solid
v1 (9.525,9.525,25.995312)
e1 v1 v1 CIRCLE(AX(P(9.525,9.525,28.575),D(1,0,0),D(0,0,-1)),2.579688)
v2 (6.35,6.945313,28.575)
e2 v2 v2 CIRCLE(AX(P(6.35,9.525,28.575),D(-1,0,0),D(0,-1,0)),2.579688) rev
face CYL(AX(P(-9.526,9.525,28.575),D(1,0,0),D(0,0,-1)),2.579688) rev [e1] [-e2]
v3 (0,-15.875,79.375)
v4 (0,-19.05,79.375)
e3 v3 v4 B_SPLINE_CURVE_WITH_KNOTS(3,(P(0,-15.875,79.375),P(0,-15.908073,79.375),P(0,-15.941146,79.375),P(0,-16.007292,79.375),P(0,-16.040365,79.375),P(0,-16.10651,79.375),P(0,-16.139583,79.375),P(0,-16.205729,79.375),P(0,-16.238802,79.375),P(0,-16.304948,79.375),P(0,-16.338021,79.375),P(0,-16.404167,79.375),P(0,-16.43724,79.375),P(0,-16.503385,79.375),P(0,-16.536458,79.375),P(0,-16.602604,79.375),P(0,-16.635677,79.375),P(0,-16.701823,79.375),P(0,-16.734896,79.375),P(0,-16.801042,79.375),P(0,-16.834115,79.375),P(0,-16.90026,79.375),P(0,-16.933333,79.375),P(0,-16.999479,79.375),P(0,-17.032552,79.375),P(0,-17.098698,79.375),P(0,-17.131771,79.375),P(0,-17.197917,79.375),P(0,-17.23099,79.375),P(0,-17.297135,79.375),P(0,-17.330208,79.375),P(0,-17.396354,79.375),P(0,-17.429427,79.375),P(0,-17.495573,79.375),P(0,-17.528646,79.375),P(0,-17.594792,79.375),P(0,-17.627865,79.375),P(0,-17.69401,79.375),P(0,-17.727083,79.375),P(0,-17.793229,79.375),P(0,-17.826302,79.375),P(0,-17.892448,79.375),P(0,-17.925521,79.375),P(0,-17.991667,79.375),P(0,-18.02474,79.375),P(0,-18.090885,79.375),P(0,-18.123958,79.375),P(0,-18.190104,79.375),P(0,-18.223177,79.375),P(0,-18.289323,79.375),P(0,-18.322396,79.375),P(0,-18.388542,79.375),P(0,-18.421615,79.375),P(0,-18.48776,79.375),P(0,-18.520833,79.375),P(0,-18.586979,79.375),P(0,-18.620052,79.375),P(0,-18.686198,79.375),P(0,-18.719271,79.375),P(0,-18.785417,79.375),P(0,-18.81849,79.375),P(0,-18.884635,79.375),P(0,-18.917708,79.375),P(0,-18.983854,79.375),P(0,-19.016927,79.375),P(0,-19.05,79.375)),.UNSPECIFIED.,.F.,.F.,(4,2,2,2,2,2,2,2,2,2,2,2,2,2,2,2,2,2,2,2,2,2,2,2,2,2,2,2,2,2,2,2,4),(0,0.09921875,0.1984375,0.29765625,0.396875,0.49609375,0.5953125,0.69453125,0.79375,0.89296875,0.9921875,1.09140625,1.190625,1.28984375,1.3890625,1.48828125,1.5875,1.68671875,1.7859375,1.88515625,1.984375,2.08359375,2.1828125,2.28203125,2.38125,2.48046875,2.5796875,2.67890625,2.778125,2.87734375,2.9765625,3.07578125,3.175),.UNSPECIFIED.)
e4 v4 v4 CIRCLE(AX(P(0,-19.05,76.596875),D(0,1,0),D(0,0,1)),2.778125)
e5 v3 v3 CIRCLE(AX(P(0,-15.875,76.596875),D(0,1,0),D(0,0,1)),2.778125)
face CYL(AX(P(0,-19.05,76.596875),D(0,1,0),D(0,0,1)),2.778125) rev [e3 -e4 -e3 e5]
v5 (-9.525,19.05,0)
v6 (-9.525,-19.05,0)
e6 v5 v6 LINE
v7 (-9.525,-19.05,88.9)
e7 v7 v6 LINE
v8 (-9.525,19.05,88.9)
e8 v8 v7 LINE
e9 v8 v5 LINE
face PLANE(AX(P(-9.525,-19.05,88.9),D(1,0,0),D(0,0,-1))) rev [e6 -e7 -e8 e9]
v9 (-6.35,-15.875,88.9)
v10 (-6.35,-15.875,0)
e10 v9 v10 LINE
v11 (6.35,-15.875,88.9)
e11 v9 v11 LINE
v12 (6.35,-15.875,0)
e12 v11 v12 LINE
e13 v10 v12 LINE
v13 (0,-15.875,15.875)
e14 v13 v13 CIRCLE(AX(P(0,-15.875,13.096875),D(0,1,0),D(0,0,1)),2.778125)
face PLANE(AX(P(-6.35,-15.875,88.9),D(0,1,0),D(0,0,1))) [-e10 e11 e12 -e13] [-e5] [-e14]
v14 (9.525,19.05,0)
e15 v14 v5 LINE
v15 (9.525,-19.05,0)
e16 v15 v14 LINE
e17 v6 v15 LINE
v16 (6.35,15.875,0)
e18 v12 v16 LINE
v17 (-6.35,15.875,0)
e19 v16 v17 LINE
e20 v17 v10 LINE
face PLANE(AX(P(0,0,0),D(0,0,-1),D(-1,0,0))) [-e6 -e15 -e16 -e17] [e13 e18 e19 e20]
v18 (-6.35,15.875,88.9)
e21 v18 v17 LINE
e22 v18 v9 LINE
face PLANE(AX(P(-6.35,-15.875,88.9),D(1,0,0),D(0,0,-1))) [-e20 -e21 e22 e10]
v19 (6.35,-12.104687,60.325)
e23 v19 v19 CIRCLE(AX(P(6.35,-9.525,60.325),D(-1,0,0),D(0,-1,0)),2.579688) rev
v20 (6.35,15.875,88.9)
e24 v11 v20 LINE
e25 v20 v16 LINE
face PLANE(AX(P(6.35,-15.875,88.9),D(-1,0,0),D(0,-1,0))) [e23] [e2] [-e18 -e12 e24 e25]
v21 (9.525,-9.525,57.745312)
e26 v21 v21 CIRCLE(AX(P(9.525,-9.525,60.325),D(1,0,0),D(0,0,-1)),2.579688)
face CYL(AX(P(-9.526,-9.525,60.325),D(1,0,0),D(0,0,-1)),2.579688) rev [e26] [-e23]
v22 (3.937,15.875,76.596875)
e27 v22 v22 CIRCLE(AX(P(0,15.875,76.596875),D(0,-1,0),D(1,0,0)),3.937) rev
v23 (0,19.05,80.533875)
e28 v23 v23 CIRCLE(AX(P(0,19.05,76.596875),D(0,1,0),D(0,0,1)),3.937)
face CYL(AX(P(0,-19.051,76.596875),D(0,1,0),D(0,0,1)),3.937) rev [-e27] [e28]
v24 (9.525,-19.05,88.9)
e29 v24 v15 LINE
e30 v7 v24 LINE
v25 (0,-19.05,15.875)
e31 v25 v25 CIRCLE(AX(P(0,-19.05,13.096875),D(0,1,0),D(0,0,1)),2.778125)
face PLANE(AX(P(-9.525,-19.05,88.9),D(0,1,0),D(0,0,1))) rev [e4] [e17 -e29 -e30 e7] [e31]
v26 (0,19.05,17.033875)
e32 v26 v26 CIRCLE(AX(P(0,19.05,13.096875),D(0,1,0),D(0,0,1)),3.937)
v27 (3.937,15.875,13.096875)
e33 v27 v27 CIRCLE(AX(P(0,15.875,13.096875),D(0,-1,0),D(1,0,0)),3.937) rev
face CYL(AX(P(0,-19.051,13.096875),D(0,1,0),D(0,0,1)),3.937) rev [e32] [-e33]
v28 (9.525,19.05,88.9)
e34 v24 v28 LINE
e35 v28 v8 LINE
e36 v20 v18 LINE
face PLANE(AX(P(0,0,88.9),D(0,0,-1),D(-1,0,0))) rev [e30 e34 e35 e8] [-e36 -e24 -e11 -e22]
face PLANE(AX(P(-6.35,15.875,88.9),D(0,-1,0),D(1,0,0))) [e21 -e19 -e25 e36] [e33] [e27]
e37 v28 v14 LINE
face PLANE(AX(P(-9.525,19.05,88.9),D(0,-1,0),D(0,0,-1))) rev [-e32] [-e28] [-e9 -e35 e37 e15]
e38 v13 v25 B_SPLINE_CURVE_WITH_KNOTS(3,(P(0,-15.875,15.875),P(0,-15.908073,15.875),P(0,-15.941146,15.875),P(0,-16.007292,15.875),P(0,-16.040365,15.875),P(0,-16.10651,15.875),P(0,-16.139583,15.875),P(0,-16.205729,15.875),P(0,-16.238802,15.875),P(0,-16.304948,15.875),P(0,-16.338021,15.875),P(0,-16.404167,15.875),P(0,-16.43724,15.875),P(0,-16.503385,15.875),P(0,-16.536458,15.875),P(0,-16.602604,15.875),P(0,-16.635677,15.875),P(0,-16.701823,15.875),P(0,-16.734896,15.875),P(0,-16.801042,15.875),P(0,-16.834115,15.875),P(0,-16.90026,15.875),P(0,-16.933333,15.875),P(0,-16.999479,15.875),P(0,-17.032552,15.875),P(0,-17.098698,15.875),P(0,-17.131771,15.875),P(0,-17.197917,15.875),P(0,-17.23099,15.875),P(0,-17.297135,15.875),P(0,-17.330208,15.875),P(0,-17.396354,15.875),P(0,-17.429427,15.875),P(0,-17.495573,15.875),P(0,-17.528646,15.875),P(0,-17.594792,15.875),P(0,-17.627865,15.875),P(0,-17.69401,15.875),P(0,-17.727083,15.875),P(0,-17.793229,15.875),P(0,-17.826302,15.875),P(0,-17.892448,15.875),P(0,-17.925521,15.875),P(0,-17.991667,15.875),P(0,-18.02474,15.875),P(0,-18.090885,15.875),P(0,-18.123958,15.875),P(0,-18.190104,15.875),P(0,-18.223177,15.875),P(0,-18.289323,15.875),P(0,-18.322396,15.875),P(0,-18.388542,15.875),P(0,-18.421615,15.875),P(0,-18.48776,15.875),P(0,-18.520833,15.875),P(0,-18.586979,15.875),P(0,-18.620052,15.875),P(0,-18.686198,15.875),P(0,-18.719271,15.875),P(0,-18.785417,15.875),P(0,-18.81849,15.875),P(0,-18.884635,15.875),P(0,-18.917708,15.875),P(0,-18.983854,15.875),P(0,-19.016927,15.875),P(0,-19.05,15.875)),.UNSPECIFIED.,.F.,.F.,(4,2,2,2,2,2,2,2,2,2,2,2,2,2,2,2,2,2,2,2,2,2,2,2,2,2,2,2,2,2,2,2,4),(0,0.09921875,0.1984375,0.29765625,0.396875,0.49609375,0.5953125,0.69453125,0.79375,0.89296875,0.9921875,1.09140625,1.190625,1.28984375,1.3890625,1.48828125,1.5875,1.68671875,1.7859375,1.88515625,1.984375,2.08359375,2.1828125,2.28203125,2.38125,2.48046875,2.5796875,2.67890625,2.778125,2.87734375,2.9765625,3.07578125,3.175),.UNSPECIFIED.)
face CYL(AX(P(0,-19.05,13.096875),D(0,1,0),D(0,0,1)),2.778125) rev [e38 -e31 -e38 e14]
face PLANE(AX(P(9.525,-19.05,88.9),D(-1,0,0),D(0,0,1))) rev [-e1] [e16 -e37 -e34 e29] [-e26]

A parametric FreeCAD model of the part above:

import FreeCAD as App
import Part
import Sketcher
from FreeCAD import Vector
Q = App.Units.Quantity


def add_polygon(sketch, points):
    """Adds a closed chain of lines whose ends are joined by coincident constraints."""
    first, n = sketch.GeometryCount, len(points)
    for a, b in zip(points, points[1:] + points[:1]):
        sketch.addGeometry(Part.LineSegment(App.Vector(*a, 0), App.Vector(*b, 0)), False)
    for i in range(n):
        sketch.addConstraint(Sketcher.Constraint("Coincident", first + i, 2, first + (i + 1) % n, 1))

doc = App.newDocument("Part")
body = doc.addObject("PartDesign::Body", "Body")

# Sketch on XY plane
sketch1 = doc.addObject("Sketcher::SketchObject", "Sketch")
body.addObject(sketch1)
sketch1.AttachmentSupport = (doc.XY_Plane, [""])
sketch1.MapMode = "FlatFace"
add_polygon(sketch1, [(-9.525, 19.05), (-9.525, -19.05), (9.525, -19.05), (9.525, 19.05)])  # lines 0-3
add_polygon(sketch1, [(6.35, -15.875), (-6.35, -15.875), (-6.35, 15.875), (6.35, 15.875)])  # lines 4-7
sketch1.addConstraint([
    Sketcher.Constraint("Vertical", 0),
    Sketcher.Constraint("Horizontal", 1),
    Sketcher.Constraint("Vertical", 2),
    Sketcher.Constraint("Horizontal", 3),
    Sketcher.Constraint("Horizontal", 4),
    Sketcher.Constraint("Vertical", 5),
    Sketcher.Constraint("Horizontal", 6),
    Sketcher.Constraint("Vertical", 7),
    Sketcher.Constraint("Symmetric", 0, 2, 2, 2, -1, 1),
    Sketcher.Constraint("Symmetric", 4, 2, 6, 2, -1, 1),
    Sketcher.Constraint("DistanceX", 4, 2, 4, 1, Q("0.5 in")),
    Sketcher.Constraint("DistanceY", 0, 2, 0, 1, Q("1.5 in")),
    Sketcher.Constraint("DistanceX", 1, 1, 1, 2, Q("0.75 in")),
    Sketcher.Constraint("DistanceY", 5, 1, 5, 2, Q("1.25 in")),
])
pad1 = doc.addObject("PartDesign::Pad", "Pad")
body.addObject(pad1)
pad1.Profile = sketch1
pad1.Length = Q("3.5 in")

# Sketch on XZ plane
sketch2 = doc.addObject("Sketcher::SketchObject", "Sketch001")
body.addObject(sketch2)
sketch2.AttachmentSupport = (doc.XZ_Plane, [""])
sketch2.MapMode = "FlatFace"
sketch2.AttachmentOffset = App.Placement(Vector(0, 0, -0.75 * 25.4), App.Rotation())
sketch2.addGeometry([
    Part.Circle(Vector(0, 76.596875, 0), Vector(0, 0, 1), 2.778125),
    Part.Circle(Vector(0, 13.096875, 0), Vector(0, 0, 1), 2.778125),
], False)
sketch2.addConstraint([
    Sketcher.Constraint("Equal", 0, 1),
    Sketcher.Constraint("PointOnObject", 0, 3, -2),
    Sketcher.Constraint("PointOnObject", 1, 3, -2),
    Sketcher.Constraint("Diameter", 0, Q("0.21875 in")),
    Sketcher.Constraint("DistanceY", 1, 3, 0, 3, Q("2.5 in")),
    Sketcher.Constraint("DistanceY", -1, 1, 0, 3, Q("3.015625 in")),
])
pocket1 = doc.addObject("PartDesign::Pocket", "Pocket")
body.addObject(pocket1)
pocket1.Profile = sketch2
pocket1.Type = "ThroughAll"
pocket1.Reversed = True

# Sketch on XZ plane
sketch3 = doc.addObject("Sketcher::SketchObject", "Sketch002")
body.addObject(sketch3)
sketch3.AttachmentSupport = (doc.XZ_Plane, [""])
sketch3.MapMode = "FlatFace"
sketch3.AttachmentOffset = App.Placement(Vector(0, 0, -0.75 * 25.4), App.Rotation())
sketch3.addGeometry(Part.Circle(Vector(0, 76.596875, 0), Vector(0, 0, 1), 3.937), False)
sketch3.addConstraint([
    Sketcher.Constraint("PointOnObject", 0, 3, -2),
    Sketcher.Constraint("Diameter", 0, Q("0.31 in")),
    Sketcher.Constraint("DistanceY", -1, 1, 0, 3, Q("3.015625 in")),
])
pocket2 = doc.addObject("PartDesign::Pocket", "Pocket001")
body.addObject(pocket2)
pocket2.Profile = sketch3
pocket2.Length = Q("0.125 in")
pocket2.Reversed = True

# Sketch on XZ plane
sketch4 = doc.addObject("Sketcher::SketchObject", "Sketch003")
body.addObject(sketch4)
sketch4.AttachmentSupport = (doc.XZ_Plane, [""])
sketch4.MapMode = "FlatFace"
sketch4.AttachmentOffset = App.Placement(Vector(0, 0, -0.75 * 25.4), App.Rotation())
sketch4.addGeometry(Part.Circle(Vector(0, 13.096875, 0), Vector(0, 0, 1), 3.937), False)
sketch4.addConstraint([
    Sketcher.Constraint("PointOnObject", 0, 3, -2),
    Sketcher.Constraint("Diameter", 0, Q("0.31 in")),
    Sketcher.Constraint("DistanceY", -1, 1, 0, 3, Q("0.515625 in")),
])
pocket3 = doc.addObject("PartDesign::Pocket", "Pocket002")
body.addObject(pocket3)
pocket3.Profile = sketch4
pocket3.Length = Q("0.125 in")
pocket3.Reversed = True

# Sketch on YZ plane
sketch5 = doc.addObject("Sketcher::SketchObject", "Sketch004")
body.addObject(sketch5)
sketch5.AttachmentSupport = (doc.YZ_Plane, [""])
sketch5.MapMode = "FlatFace"
sketch5.AttachmentOffset = App.Placement(Vector(0, 0, 0.375 * 25.4), App.Rotation())
sketch5.addGeometry(Part.Circle(Vector(-9.525, 60.325, 0), Vector(0, 0, 1), 2.579687), False)
sketch5.addConstraint([
    Sketcher.Constraint("Diameter", 0, Q("0.203125 in")),
    Sketcher.Constraint("DistanceX", 0, 3, -1, 1, Q("0.375 in")),
    Sketcher.Constraint("DistanceY", -1, 1, 0, 3, Q("2.375 in")),
])
pocket4 = doc.addObject("PartDesign::Pocket", "Pocket003")
body.addObject(pocket4)
pocket4.Profile = sketch5
pocket4.Type = "UpToFirst"

# Sketch on YZ plane
sketch6 = doc.addObject("Sketcher::SketchObject", "Sketch005")
body.addObject(sketch6)
sketch6.AttachmentSupport = (doc.YZ_Plane, [""])
sketch6.MapMode = "FlatFace"
sketch6.AttachmentOffset = App.Placement(Vector(0, 0, 0.375 * 25.4), App.Rotation())
sketch6.addGeometry(Part.Circle(Vector(9.525, 28.575, 0), Vector(0, 0, 1), 2.579687), False)
sketch6.addConstraint([
    Sketcher.Constraint("Diameter", 0, Q("0.203125 in")),
    Sketcher.Constraint("DistanceX", -1, 1, 0, 3, Q("0.375 in")),
    Sketcher.Constraint("DistanceY", -1, 1, 0, 3, Q("1.125 in")),
])
pocket5 = doc.addObject("PartDesign::Pocket", "Pocket004")
body.addObject(pocket5)
pocket5.Profile = sketch6
pocket5.Type = "UpToFirst"

doc.recompute()
